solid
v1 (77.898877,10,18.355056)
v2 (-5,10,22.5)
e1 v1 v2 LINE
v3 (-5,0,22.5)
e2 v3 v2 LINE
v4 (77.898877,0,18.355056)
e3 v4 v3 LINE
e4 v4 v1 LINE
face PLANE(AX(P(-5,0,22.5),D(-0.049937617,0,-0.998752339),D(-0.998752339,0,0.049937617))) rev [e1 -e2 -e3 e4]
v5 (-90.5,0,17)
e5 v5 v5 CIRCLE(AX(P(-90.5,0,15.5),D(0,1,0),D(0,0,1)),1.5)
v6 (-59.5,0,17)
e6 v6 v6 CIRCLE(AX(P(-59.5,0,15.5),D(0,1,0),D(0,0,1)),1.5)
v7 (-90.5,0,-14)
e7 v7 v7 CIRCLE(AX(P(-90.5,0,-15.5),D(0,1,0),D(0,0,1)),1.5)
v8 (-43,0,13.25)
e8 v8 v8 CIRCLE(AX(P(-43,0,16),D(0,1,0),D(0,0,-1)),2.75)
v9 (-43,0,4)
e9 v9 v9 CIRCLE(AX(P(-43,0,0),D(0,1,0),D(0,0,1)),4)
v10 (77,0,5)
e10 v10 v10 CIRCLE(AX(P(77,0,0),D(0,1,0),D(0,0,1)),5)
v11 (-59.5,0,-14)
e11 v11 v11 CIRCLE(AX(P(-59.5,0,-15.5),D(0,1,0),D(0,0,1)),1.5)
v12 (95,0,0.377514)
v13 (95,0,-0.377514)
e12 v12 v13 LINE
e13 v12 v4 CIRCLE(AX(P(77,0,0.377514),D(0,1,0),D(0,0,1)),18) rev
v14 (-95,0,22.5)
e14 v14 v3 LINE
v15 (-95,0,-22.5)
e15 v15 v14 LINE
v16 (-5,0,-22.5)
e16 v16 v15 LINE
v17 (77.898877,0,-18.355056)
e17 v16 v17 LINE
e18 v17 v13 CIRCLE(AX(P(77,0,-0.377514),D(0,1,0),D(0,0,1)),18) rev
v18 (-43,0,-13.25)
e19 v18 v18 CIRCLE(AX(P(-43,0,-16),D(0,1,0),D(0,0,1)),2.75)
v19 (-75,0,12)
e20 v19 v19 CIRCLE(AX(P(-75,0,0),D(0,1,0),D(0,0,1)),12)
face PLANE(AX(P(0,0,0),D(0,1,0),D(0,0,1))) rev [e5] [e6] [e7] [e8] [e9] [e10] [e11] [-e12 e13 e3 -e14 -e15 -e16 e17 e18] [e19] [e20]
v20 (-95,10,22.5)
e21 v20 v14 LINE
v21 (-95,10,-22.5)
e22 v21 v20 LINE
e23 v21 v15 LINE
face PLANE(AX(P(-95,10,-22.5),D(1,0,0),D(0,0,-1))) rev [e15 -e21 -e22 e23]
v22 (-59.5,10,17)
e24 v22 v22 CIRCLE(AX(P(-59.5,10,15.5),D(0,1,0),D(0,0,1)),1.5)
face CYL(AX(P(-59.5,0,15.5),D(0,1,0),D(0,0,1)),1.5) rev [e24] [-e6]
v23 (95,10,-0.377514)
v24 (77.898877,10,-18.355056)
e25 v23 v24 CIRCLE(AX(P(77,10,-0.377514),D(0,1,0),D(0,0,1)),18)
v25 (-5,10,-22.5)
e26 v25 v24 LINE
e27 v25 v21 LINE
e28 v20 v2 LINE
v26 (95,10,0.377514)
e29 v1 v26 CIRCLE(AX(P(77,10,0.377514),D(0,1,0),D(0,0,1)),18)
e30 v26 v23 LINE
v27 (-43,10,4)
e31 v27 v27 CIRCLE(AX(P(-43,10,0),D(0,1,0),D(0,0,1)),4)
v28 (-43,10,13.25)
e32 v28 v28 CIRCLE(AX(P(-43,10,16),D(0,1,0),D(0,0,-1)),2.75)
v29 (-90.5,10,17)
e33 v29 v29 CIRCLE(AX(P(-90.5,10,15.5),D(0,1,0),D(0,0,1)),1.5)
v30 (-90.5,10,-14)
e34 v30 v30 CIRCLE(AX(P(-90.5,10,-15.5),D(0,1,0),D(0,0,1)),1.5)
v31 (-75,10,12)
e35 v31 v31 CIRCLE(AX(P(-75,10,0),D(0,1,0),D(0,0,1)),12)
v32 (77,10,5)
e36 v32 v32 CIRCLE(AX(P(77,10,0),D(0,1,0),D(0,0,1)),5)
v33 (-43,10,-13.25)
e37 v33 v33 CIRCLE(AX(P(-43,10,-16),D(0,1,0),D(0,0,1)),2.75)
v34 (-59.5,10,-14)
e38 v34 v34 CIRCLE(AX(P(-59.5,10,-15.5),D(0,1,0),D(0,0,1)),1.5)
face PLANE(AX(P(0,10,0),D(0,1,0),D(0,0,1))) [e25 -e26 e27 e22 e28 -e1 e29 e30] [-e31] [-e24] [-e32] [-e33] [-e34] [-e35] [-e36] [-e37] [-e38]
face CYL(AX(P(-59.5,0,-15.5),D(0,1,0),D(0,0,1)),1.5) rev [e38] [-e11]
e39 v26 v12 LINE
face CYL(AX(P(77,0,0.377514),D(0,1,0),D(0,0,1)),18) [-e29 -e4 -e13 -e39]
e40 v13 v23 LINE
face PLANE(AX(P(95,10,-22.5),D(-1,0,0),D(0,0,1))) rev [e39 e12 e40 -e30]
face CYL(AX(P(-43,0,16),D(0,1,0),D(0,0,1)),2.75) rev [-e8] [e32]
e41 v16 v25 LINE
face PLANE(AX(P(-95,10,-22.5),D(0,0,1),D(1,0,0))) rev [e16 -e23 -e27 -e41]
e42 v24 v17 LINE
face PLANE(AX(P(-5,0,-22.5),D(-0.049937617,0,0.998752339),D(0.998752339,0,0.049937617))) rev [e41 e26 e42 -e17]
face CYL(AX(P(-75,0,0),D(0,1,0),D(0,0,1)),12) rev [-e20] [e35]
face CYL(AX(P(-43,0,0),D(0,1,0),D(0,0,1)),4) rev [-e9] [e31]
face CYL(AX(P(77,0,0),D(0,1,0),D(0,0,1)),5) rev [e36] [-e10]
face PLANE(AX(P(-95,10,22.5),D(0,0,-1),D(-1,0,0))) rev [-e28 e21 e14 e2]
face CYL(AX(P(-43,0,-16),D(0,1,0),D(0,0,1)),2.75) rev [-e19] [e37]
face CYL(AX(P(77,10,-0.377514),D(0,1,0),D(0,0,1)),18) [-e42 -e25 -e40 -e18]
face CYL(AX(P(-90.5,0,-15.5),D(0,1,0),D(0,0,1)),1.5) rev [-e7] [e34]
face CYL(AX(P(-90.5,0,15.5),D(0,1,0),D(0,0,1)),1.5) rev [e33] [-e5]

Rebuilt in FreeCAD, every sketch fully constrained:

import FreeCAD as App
import Part
import Sketcher
from FreeCAD import Vector
Q = App.Units.Quantity


def edges_at(feature, points):
    """Names of the edges that pass closest to the given points."""
    edges = feature.Shape.Edges
    near = lambda p: min(range(len(edges)), key=lambda i: edges[i].distToShape(Part.Vertex(*p))[0])
    return sorted({f"Edge{near(p) + 1}" for p in points})

doc = App.newDocument("Part")
body = doc.addObject("PartDesign::Body", "Body")

# Sketch on XZ plane
sketch1 = body.newObject("Sketcher::SketchObject", "Sketch")
sketch1.AttachmentSupport = (doc.getObject("XZ_Plane"), [""])
sketch1.MapMode = "FlatFace"
sketch1.addGeometry([
    Part.LineSegment(Vector(-95, -22, 0), Vector(-95, 22, 0)),
    Part.LineSegment(Vector(-95, 22, 0), Vector(95, 22, 0)),
    Part.LineSegment(Vector(95, 22, 0), Vector(95, -22, 0)),
    Part.LineSegment(Vector(95, -22, 0), Vector(-95, -22, 0)),
], False)
sketch1.addConstraint([
    Sketcher.Constraint("Coincident", 0, 2, 1, 1),
    Sketcher.Constraint("Coincident", 1, 2, 2, 1),
    Sketcher.Constraint("Coincident", 2, 2, 3, 1),
    Sketcher.Constraint("Coincident", 3, 2, 0, 1),
    Sketcher.Constraint("Vertical", 0),
    Sketcher.Constraint("Horizontal", 1),
    Sketcher.Constraint("Vertical", 2),
    Sketcher.Constraint("Horizontal", 3),
    Sketcher.Constraint("Symmetric", 0, 2, 2, 2, -1, 1),
    Sketcher.Constraint("DistanceX", 1, 1, 1, 2, Q("190 mm")),
    Sketcher.Constraint("DistanceY", 0, 1, 0, 2, Q("45 mm")),
])
pad1 = body.newObject("PartDesign::Pad", "Pad")
pad1.Profile = sketch1
pad1.Length = 10
pad1.Reversed = True

# Sketch on XZ plane
sketch2 = body.newObject("Sketcher::SketchObject", "Sketch001")
sketch2.AttachmentSupport = (doc.getObject("XZ_Plane"), [""])
sketch2.MapMode = "FlatFace"
sketch2.AttachmentOffset = App.Placement(Vector(0, 0, -10), App.Rotation())
sketch2.addGeometry([
    Part.Circle(Vector(-90.5, -15.5, 0), Vector(0, 0, 1), 1.5),  # 0
    Part.Circle(Vector(-59.5, -15.5, 0), Vector(0, 0, 1), 1.5),  # 1
    Part.Circle(Vector(-90.5, 15.5, 0), Vector(0, 0, 1), 1.5),  # 2
    Part.Circle(Vector(-59.5, 15.5, 0), Vector(0, 0, 1), 1.5),  # 3
    Part.Circle(Vector(-75, 0, 0), Vector(0, 0, 1), 12),  # 4
    Part.Circle(Vector(-43, 0, 0), Vector(0, 0, 1), 4),  # 5
    Part.Circle(Vector(-43, -16, 0), Vector(0, 0, 1), 2.8),  # 6
    Part.Circle(Vector(-43, 16, 0), Vector(0, 0, 1), 2.8),  # 7
    Part.Circle(Vector(77, 0, 0), Vector(0, 0, 1), 5),  # 8
], False)
sketch2.addConstraint([
    Sketcher.Constraint("Equal", 0, 1),
    Sketcher.Constraint("Equal", 1, 2),
    Sketcher.Constraint("Equal", 2, 3),
    Sketcher.Constraint("Equal", 6, 7),
    Sketcher.Constraint("Symmetric", 0, 3, 2, 3, -1),
    Sketcher.Constraint("Symmetric", 1, 3, 3, 3, -1),
    Sketcher.Constraint("Symmetric", 6, 3, 7, 3, -1),
    Sketcher.Constraint("PointOnObject", 4, 3, -1),
    Sketcher.Constraint("PointOnObject", 5, 3, -1),
    Sketcher.Constraint("PointOnObject", 8, 3, -1),
    Sketcher.Constraint("Horizontal", 0, 3, 1, 3),
    Sketcher.Constraint("Vertical", 5, 3, 6, 3),
    Sketcher.Constraint("Diameter", 0, Q("3 mm")),
    Sketcher.Constraint("Diameter", 4, Q("24 mm")),
    Sketcher.Constraint("Diameter", 5, Q("8 mm")),
    Sketcher.Constraint("Diameter", 8, Q("10 mm")),
    Sketcher.Constraint("Diameter", 6, Q("5.5 mm")),
    Sketcher.Constraint("DistanceX", 4, 3, -1, 1, Q("75 mm")),
    Sketcher.Constraint("DistanceX", 5, 3, -1, 1, Q("43 mm")),
    Sketcher.Constraint("DistanceY", 6, 3, -1, 1, Q("16 mm")),
    Sketcher.Constraint("DistanceX", -1, 1, 8, 3, Q("77 mm")),
    Sketcher.Constraint("DistanceX", 0, 3, 1, 3, Q("31 mm")),
    Sketcher.Constraint("DistanceY", 0, 3, 2, 3, Q("31 mm")),
    Sketcher.Constraint("DistanceX", 0, 3, -1, 1, Q("90.5 mm")),
])
pocket1 = body.newObject("PartDesign::Pocket", "Pocket")
pocket1.Profile = sketch2
pocket1.Length = 10
pocket1.Reversed = True

# Sketch on XZ plane
sketch3 = body.newObject("Sketcher::SketchObject", "Sketch002")
sketch3.AttachmentSupport = (doc.getObject("XZ_Plane"), [""])
sketch3.MapMode = "FlatFace"
sketch3.AttachmentOffset = App.Placement(Vector(0, 0, -10), App.Rotation())
sketch3.addGeometry([
    Part.LineSegment(Vector(-5, 22, 0), Vector(95, 22, 0)),  # 0
    Part.LineSegment(Vector(95, 22, 0), Vector(95, 18, 0)),  # 1
    Part.LineSegment(Vector(95, 18, 0), Vector(-5, 22, 0)),  # 2
    Part.LineSegment(Vector(-5, -22, 0), Vector(95, -18, 0)),  # 3
    Part.LineSegment(Vector(95, -18, 0), Vector(95, -22, 0)),  # 4
    Part.LineSegment(Vector(95, -22, 0), Vector(-5, -22, 0)),  # 5
], False)
sketch3.addConstraint([
    Sketcher.Constraint("Coincident", 0, 2, 1, 1),
    Sketcher.Constraint("Coincident", 1, 2, 2, 1),
    Sketcher.Constraint("Coincident", 2, 2, 0, 1),
    Sketcher.Constraint("Coincident", 3, 2, 4, 1),
    Sketcher.Constraint("Coincident", 4, 2, 5, 1),
    Sketcher.Constraint("Coincident", 5, 2, 3, 1),
    Sketcher.Constraint("Horizontal", 0),
    Sketcher.Constraint("Vertical", 1),
    Sketcher.Constraint("Vertical", 4),
    Sketcher.Constraint("Horizontal", 5),
    Sketcher.Constraint("Symmetric", 1, 2, 3, 2, -1),
    Sketcher.Constraint("Symmetric", 2, 2, 5, 2, -1),
    Sketcher.Constraint("DistanceX", 0, 1, 0, 2, Q("100 mm")),
    Sketcher.Constraint("DistanceY", 1, 2, 1, 1, Q("5 mm")),
    Sketcher.Constraint("DistanceX", -1, 1, 0, 2, Q("95 mm")),
    Sketcher.Constraint("DistanceY", 3, 2, 1, 2, Q("35 mm")),
])
pocket2 = body.newObject("PartDesign::Pocket", "Pocket001")
pocket2.Profile = sketch3
pocket2.Length = 10
pocket2.Reversed = True
doc.recompute()

fillet = body.newObject("PartDesign::Fillet", "Fillet")
fillet.Base = (pocket2, edges_at(pocket2, [(95, 5, 17.5), (95, 5, -17.5)]))
fillet.Radius = 18

doc.recompute()
